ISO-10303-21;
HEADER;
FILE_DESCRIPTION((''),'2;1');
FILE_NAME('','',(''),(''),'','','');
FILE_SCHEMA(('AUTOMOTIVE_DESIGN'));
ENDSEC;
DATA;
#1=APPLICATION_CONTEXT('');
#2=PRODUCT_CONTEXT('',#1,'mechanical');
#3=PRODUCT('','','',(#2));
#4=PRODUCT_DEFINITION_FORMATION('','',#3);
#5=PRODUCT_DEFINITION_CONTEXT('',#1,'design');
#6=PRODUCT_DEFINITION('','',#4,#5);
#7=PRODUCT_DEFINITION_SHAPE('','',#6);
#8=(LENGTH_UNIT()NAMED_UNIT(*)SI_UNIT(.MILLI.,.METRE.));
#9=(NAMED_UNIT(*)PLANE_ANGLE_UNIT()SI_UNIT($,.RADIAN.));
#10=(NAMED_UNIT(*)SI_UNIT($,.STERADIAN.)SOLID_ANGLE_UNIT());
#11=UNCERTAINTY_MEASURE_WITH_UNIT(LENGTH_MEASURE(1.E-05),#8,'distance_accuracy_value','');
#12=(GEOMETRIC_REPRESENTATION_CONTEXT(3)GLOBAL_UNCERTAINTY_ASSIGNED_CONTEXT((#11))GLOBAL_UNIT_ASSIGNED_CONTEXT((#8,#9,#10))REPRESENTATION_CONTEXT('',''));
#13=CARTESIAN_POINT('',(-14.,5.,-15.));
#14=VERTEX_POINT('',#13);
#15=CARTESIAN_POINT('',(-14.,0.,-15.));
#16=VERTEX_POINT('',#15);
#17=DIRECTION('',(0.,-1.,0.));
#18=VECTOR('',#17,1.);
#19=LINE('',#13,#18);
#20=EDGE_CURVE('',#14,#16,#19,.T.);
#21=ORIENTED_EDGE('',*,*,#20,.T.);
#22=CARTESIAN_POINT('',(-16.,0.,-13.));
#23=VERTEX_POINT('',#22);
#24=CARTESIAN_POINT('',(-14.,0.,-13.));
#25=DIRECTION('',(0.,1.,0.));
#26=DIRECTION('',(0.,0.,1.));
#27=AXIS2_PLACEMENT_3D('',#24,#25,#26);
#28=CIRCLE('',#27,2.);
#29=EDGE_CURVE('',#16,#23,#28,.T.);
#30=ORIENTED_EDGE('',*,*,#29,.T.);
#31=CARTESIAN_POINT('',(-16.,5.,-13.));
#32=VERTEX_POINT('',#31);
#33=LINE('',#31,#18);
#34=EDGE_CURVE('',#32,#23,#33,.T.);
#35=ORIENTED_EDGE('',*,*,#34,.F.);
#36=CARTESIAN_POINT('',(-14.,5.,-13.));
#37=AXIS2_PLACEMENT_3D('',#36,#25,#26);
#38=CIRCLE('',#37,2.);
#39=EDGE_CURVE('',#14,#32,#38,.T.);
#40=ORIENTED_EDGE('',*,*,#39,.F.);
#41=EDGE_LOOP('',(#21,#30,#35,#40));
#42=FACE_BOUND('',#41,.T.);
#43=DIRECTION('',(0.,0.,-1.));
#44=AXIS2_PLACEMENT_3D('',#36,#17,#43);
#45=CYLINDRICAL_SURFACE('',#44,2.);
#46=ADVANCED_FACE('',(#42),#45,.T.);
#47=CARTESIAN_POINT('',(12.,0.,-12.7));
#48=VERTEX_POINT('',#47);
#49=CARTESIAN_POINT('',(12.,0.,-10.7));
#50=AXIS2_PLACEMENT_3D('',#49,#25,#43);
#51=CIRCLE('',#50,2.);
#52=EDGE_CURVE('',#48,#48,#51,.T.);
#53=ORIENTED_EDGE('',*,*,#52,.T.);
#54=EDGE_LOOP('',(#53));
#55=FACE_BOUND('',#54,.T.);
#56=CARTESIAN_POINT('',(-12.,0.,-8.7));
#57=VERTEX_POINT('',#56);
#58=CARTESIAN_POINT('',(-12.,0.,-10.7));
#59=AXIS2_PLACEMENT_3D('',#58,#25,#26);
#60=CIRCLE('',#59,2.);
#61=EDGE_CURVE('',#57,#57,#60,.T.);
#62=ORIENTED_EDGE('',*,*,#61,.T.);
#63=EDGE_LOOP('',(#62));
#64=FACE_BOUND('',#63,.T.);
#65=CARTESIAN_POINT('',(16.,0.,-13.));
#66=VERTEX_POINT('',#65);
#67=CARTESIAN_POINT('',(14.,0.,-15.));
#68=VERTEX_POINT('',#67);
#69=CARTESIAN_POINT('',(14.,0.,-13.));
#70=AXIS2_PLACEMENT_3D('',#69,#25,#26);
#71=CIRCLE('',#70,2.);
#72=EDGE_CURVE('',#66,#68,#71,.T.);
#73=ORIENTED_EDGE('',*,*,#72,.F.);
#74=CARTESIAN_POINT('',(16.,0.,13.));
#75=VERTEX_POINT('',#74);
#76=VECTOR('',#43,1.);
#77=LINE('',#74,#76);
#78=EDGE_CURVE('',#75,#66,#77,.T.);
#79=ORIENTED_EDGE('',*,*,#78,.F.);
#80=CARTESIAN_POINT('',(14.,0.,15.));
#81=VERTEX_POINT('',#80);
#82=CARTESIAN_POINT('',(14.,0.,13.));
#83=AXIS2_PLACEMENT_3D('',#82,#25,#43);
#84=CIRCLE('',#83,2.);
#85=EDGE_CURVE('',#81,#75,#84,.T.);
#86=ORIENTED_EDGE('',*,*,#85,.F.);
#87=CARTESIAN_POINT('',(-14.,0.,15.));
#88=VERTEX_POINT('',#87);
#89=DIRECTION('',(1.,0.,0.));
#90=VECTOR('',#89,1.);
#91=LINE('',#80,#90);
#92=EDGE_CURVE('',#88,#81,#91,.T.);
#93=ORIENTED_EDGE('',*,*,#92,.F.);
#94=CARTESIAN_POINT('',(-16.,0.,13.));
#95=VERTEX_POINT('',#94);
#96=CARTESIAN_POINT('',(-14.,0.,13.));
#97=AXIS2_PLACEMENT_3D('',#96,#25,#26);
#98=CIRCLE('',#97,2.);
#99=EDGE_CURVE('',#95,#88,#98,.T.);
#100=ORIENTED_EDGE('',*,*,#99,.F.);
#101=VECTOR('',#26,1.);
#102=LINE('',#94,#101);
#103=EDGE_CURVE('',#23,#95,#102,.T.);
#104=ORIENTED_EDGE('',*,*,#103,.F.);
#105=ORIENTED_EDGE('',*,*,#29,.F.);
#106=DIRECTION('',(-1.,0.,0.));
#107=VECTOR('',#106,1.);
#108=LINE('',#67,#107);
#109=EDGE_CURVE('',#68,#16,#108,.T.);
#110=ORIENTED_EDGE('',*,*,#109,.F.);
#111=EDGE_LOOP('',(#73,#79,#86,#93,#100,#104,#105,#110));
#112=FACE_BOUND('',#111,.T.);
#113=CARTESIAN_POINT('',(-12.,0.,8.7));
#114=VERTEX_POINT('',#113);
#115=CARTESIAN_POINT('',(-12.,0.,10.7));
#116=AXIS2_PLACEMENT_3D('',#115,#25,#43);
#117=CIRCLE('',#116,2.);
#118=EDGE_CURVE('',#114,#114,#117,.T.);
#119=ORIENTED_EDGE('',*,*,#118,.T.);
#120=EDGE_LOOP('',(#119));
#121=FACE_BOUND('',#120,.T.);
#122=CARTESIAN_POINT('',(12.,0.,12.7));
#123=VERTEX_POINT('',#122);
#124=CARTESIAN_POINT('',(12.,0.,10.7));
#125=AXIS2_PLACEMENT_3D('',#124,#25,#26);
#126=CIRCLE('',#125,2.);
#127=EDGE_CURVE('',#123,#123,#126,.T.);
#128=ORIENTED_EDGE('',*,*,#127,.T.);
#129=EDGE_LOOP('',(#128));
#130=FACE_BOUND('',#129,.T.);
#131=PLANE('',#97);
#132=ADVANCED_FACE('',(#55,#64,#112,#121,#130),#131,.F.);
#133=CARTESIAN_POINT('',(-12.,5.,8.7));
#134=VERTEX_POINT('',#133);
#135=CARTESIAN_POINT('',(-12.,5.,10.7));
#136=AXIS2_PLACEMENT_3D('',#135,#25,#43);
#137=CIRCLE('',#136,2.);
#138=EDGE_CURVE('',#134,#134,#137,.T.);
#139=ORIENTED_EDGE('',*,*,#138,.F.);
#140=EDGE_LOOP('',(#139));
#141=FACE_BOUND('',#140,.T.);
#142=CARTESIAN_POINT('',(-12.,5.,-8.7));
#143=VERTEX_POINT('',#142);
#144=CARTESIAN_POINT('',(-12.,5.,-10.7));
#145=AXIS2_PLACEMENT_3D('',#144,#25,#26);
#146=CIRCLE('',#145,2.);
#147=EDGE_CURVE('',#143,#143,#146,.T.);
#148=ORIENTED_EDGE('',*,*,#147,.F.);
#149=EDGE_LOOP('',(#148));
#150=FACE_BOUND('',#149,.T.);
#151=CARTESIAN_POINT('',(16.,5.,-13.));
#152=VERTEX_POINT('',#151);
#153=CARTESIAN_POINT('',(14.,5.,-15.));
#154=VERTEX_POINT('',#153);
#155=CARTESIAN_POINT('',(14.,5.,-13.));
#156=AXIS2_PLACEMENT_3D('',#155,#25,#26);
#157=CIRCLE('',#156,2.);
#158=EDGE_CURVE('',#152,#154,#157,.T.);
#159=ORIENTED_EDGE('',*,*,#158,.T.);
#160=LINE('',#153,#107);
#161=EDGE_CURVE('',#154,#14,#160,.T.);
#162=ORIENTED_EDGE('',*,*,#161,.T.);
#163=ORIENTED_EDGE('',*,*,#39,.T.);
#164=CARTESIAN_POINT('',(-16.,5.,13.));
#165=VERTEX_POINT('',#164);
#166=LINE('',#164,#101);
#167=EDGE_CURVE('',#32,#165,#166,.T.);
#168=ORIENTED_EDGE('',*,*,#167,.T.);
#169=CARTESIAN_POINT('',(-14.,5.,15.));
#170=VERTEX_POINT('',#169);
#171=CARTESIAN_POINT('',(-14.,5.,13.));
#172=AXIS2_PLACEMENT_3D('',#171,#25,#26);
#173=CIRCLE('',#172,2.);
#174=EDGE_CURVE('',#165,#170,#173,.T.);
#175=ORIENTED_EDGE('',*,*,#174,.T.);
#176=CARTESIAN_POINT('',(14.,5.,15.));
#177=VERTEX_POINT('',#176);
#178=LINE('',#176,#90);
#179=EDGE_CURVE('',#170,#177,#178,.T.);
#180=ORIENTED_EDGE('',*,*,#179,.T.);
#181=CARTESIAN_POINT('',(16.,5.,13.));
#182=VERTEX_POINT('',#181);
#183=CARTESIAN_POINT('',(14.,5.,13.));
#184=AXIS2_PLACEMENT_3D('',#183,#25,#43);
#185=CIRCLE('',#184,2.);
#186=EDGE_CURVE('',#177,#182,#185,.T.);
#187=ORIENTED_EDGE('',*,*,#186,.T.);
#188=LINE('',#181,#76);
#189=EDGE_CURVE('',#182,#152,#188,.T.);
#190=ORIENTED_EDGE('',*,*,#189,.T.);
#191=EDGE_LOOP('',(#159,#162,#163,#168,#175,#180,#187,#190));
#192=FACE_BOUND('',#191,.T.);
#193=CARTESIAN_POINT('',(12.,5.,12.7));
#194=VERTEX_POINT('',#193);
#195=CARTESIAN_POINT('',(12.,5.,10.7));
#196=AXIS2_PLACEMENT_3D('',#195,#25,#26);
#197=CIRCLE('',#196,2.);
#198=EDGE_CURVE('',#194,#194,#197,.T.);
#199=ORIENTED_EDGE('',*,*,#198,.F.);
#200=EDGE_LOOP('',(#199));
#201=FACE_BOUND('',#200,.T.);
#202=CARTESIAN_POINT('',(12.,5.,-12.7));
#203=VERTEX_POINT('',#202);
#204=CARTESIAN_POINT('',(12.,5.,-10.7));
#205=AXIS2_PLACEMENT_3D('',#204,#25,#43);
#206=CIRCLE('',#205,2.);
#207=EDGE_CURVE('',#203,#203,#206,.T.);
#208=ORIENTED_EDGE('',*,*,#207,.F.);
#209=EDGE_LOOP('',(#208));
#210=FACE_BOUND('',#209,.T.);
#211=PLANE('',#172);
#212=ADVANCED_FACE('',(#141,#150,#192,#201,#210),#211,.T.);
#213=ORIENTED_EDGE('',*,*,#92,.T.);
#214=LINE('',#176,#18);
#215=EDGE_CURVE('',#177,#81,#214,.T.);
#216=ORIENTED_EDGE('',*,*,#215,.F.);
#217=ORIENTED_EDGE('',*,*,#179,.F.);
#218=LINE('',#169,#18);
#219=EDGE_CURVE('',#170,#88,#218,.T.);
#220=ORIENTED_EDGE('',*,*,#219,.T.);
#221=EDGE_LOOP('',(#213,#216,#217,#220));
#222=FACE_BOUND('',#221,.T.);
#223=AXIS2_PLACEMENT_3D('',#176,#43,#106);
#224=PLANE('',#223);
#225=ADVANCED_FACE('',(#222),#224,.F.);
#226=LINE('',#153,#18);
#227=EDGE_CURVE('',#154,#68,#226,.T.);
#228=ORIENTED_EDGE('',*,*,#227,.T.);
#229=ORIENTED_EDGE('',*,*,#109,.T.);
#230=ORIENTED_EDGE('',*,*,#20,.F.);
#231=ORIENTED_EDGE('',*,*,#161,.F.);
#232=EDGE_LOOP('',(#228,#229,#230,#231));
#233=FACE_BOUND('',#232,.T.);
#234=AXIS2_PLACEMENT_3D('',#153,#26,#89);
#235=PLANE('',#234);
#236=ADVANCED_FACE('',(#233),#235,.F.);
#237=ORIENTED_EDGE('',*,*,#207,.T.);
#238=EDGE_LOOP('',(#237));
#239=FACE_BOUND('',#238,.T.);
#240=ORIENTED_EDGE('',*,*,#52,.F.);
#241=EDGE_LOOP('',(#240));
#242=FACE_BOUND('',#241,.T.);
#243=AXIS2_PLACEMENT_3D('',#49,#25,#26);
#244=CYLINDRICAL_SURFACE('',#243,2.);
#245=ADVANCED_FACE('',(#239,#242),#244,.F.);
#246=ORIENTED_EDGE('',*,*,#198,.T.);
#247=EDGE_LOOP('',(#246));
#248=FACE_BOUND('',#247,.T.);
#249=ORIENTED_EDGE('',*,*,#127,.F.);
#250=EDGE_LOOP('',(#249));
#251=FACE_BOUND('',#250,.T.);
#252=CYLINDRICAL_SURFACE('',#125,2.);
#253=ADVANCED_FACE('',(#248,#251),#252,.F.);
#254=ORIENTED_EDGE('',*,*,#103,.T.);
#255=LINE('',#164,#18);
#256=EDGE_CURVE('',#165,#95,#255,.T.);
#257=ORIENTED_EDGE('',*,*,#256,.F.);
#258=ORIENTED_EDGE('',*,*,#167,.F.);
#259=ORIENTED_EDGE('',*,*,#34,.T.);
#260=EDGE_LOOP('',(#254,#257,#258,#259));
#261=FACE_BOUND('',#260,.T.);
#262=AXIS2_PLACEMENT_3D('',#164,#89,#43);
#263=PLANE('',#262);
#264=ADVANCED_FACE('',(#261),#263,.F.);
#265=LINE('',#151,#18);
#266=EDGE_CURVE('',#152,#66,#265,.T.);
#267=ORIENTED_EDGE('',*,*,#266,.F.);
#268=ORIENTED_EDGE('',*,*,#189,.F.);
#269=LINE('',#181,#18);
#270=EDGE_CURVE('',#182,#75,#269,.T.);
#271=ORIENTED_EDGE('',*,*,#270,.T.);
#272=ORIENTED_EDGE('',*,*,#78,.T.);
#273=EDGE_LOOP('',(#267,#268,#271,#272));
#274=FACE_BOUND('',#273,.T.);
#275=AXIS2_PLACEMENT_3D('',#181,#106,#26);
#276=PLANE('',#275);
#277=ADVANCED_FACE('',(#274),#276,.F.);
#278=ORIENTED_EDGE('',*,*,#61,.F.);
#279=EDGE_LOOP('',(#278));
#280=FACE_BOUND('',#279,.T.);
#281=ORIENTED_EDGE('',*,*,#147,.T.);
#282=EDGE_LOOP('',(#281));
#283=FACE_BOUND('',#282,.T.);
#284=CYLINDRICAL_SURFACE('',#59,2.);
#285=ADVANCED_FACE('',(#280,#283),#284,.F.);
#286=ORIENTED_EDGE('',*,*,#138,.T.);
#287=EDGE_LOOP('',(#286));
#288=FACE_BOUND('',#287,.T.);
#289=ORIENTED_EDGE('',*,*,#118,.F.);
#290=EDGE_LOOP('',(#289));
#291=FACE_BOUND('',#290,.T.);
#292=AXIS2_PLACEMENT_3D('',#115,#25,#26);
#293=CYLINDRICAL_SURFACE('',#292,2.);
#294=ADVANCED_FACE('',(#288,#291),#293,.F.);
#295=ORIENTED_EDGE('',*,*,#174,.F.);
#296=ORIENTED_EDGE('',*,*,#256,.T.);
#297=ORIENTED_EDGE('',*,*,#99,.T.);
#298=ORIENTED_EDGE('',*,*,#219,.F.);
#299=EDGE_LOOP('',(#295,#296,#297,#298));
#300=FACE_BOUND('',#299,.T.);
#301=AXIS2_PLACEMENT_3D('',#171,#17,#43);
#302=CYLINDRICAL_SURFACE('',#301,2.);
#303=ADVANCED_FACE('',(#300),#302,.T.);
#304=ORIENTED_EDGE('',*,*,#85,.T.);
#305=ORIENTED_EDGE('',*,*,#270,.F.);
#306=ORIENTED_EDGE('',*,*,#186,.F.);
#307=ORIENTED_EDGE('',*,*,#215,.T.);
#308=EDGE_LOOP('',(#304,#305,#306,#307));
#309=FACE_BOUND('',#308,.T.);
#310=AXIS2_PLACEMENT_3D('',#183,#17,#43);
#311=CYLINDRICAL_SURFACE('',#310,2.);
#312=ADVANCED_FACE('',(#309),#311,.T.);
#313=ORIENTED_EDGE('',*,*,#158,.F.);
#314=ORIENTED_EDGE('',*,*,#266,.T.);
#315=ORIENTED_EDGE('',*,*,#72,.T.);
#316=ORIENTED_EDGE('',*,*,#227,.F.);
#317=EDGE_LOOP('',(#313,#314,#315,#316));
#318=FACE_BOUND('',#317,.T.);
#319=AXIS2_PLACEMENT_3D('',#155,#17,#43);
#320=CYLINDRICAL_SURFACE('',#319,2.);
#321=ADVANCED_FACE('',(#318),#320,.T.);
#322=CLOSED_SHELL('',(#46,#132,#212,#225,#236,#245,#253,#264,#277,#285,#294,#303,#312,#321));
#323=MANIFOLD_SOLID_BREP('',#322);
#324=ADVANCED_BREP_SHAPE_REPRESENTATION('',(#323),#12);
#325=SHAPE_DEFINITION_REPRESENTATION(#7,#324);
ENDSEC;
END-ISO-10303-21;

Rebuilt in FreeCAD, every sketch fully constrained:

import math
import FreeCAD as App
import Part
import Sketcher
from FreeCAD import Vector

doc = App.newDocument("Part")
params = doc.addObject("Spreadsheet::Sheet", "Params")
for row, (alias, value) in enumerate([
    ("sketch1_radius", "2 mm"),
    ("sketch1_width", "28 mm"),
    ("sketch1_height", "26 mm"),
    ("pad1_length", "5 mm"),
    ("sketch2_diameter", "4 mm"),
    ("pocket1_length", "5 mm"),
], start=1):
    params.set(f"A{row}", alias)
    params.set(f"B{row}", "=" + value)
    params.setAlias(f"B{row}", alias)

body = doc.addObject("PartDesign::Body", "Body")

sketch1 = body.newObject("Sketcher::SketchObject", "Sketch")
sketch1.AttachmentSupport = (doc.getObject("XZ_Plane"), [""])
sketch1.MapMode = "FlatFace"
sketch1.addGeometry([
    Part.LineSegment(Vector(-14, 15, 0), Vector(14, 15, 0)),
    Part.ArcOfCircle(Part.Circle(Vector(14, 13, 0), Vector(0, 0, 1), 2), math.radians(0), math.radians(90)),
    Part.LineSegment(Vector(16, 13, 0), Vector(16, -13, 0)),
    Part.ArcOfCircle(Part.Circle(Vector(14, -13, 0), Vector(0, 0, 1), 2), math.radians(-90), math.radians(0)),
    Part.LineSegment(Vector(14, -15, 0), Vector(-14, -15, 0)),
    Part.ArcOfCircle(Part.Circle(Vector(-14, -13, 0), Vector(0, 0, 1), 2), math.radians(-180), math.radians(-90)),
    Part.LineSegment(Vector(-16, -13, 0), Vector(-16, 13, 0)),
    Part.ArcOfCircle(Part.Circle(Vector(-14, 13, 0), Vector(0, 0, 1), 2), math.radians(90), math.radians(180)),
], False)
sketch1.addConstraint([
    Sketcher.Constraint("Tangent", 0, 2, 1, 2),
    Sketcher.Constraint("Tangent", 1, 1, 2, 1),
    Sketcher.Constraint("Tangent", 2, 2, 3, 2),
    Sketcher.Constraint("Tangent", 3, 1, 4, 1),
    Sketcher.Constraint("Tangent", 4, 2, 5, 2),
    Sketcher.Constraint("Tangent", 5, 1, 6, 1),
    Sketcher.Constraint("Tangent", 6, 2, 7, 2),
    Sketcher.Constraint("Tangent", 7, 1, 0, 1),
    Sketcher.Constraint("Horizontal", 0),
    Sketcher.Constraint("Vertical", 2),
    Sketcher.Constraint("Horizontal", 4),
    Sketcher.Constraint("Vertical", 6),
    Sketcher.Constraint("Equal", 1, 3),
    Sketcher.Constraint("Equal", 3, 5),
    Sketcher.Constraint("Equal", 5, 7),
    Sketcher.Constraint("Symmetric", 1, 3, 5, 3, -1, 1),
    Sketcher.Constraint("Radius", 1, 2.0),
    Sketcher.Constraint("DistanceX", 0, 1, 0, 2, 28.0),
    Sketcher.Constraint("DistanceY", 2, 2, 2, 1, 26.0),
])
sketch1.setExpression("Constraints[16]", "Params.sketch1_radius")
sketch1.setExpression("Constraints[17]", "Params.sketch1_width")
sketch1.setExpression("Constraints[18]", "Params.sketch1_height")
pad1 = body.newObject("PartDesign::Pad", "Pad")
pad1.Profile = sketch1
pad1.setExpression("Length", "Params.pad1_length")
pad1.Reversed = True

sketch2 = body.newObject("Sketcher::SketchObject", "Sketch001")
sketch2.AttachmentSupport = (doc.getObject("XZ_Plane"), [""])
sketch2.MapMode = "FlatFace"
sketch2.AttachmentOffset = App.Placement(Vector(0, 0, -5), App.Rotation())
sketch2.addGeometry([
    Part.Circle(Vector(-12, -10.7, 0), Vector(0, 0, 1), 2),
    Part.Circle(Vector(12, -10.7, 0), Vector(0, 0, 1), 2),
    Part.Circle(Vector(12, 10.7, 0), Vector(0, 0, 1), 2),
    Part.Circle(Vector(-12, 10.7, 0), Vector(0, 0, 1), 2),
], False)
sketch2.addConstraint([
    Sketcher.Constraint("Equal", 0, 1),
    Sketcher.Constraint("Equal", 1, 2),
    Sketcher.Constraint("Equal", 2, 3),
    Sketcher.Constraint("Symmetric", 0, 3, 2, 3, -1, 1),
    Sketcher.Constraint("Symmetric", 1, 3, 3, 3, -1, 1),
    Sketcher.Constraint("Symmetric", 0, 3, 1, 3, -2),
    Sketcher.Constraint("Diameter", 0, 4.0),
    Sketcher.Constraint("DistanceX", 0, 3, -1, 1, 12.0),
    Sketcher.Constraint("DistanceY", 0, 3, -1, 1, 10.7),
])
sketch2.setExpression("Constraints[6]", "Params.sketch2_diameter")
pocket1 = body.newObject("PartDesign::Pocket", "Pocket")
pocket1.Profile = sketch2
pocket1.setExpression("Length", "Params.pocket1_length")
pocket1.Reversed = True

doc.recompute()
